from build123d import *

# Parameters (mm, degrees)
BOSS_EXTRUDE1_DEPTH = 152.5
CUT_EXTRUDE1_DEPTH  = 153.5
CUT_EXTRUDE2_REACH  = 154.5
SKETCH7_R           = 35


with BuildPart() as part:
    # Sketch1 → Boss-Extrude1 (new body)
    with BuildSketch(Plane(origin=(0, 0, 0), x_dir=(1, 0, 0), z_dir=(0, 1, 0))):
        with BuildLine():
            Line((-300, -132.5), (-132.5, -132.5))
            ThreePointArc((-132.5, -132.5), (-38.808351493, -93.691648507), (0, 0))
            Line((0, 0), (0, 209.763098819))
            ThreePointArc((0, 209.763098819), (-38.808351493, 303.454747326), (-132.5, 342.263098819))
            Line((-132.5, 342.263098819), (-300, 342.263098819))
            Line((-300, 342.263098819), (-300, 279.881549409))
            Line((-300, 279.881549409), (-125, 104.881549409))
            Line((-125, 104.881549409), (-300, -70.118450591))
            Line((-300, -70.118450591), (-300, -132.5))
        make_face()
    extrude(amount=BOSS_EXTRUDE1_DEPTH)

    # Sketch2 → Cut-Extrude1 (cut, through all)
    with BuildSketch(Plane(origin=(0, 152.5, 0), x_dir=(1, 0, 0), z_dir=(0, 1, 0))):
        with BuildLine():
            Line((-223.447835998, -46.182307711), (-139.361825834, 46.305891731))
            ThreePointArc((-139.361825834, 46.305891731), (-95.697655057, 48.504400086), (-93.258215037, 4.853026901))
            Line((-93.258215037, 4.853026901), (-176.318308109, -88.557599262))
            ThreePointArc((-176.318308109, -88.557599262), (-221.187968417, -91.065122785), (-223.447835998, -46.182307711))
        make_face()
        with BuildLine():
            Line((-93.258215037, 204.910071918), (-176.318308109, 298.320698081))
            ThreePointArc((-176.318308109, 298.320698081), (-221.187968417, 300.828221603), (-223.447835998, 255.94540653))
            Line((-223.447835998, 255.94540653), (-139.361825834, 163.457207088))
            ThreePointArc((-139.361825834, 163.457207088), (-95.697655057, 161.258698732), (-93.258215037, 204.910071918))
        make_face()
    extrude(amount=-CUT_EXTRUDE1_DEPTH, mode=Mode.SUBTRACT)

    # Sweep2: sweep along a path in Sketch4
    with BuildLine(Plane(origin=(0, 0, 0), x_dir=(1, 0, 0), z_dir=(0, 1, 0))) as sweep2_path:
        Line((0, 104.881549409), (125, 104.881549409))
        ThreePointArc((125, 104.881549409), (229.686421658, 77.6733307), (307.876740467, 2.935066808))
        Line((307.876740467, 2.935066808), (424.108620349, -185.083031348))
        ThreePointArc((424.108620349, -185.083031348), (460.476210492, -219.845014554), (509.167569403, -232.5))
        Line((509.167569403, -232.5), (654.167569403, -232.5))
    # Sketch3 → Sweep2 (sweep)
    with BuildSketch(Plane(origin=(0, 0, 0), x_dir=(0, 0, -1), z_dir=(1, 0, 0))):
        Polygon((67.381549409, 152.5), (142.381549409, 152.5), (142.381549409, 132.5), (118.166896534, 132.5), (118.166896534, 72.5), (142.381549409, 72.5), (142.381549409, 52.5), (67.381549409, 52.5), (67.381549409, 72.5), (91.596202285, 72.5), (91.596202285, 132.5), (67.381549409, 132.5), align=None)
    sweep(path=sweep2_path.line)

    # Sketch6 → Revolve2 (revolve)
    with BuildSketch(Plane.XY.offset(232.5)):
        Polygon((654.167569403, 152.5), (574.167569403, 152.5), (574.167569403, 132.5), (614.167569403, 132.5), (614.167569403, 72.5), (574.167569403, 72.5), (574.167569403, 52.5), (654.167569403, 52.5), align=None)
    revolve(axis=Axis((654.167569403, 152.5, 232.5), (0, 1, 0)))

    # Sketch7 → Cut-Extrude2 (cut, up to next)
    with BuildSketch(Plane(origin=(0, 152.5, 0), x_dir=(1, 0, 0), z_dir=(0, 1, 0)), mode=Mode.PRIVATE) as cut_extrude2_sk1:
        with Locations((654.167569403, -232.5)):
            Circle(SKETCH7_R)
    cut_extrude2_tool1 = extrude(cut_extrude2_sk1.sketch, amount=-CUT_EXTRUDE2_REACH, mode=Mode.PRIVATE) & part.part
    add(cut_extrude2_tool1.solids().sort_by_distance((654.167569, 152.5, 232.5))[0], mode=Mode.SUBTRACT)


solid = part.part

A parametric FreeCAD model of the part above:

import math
import FreeCAD as App
import Part
import Sketcher

V = App.Vector

doc = App.newDocument("Part")
params = doc.addObject("Spreadsheet::Sheet", "Params")
for row, (alias, value) in enumerate([
    ("sketch1_radius", "132.5 mm"),
    ("sketch1_width", "167.5 mm"),
    ("pad1_length", "152.5 mm"),
    ("sketch2_radius", "31 mm"),
    ("sketch3_width", "20 mm"),
    ("sketch3_width2", "60 mm"),
    ("sketch3_height", "75 mm"),
    ("sketch4_radius", "215 mm"),
    ("sketch4_radius2", "100 mm"),
    ("sketch4_width", "125 mm"),
    ("sketch4_width2", "145 mm"),
    ("sketch5_width", "80 mm"),
    ("sketch5_width2", "40 mm"),
    ("sketch5_height", "20 mm"),
    ("sketch5_height2", "60 mm"),
    ("revolution_angle", "360 deg"),
    ("sketch6_diameter", "70 mm"),
], start=1):
    params.set(f"A{row}", alias)
    params.set(f"B{row}", "=" + value)
    params.setAlias(f"B{row}", alias)

body = doc.addObject("PartDesign::Body", "Body")

# Sketch on XZ plane
sketch1 = body.newObject("Sketcher::SketchObject", "Sketch")
sketch1.AttachmentSupport = (doc.getObject("XZ_Plane"), [""])
sketch1.MapMode = "FlatFace"
sketch1.addGeometry(Part.LineSegment(V(-300, 132.5, 0), V(-132.5, 132.5, 0)), False)
sketch1.addGeometry(Part.ArcOfCircle(Part.Circle(V(-132.5, 0, 0), V(0, 0, 1), 132.5), math.radians(0), math.radians(90)), False)
sketch1.addGeometry(Part.LineSegment(V(0, 0, 0), V(0, -209.763099, 0)), False)
sketch1.addGeometry(Part.ArcOfCircle(Part.Circle(V(-132.5, -209.763099, 0), V(0, 0, 1), 132.5), math.radians(-90), math.radians(0)), False)
sketch1.addGeometry(Part.LineSegment(V(-132.5, -342.263099, 0), V(-300, -342.263099, 0)), False)
sketch1.addGeometry(Part.LineSegment(V(-300, -342.263099, 0), V(-300, -279.881549, 0)), False)
sketch1.addGeometry(Part.LineSegment(V(-300, -279.881549, 0), V(-125, -104.881549, 0)), False)
sketch1.addGeometry(Part.LineSegment(V(-125, -104.881549, 0), V(-300, 70.118451, 0)), False)
sketch1.addGeometry(Part.LineSegment(V(-300, 70.118451, 0), V(-300, 132.5, 0)), False)
sketch1.addConstraint(Sketcher.Constraint("Tangent", 0, 2, 1, 2))
sketch1.addConstraint(Sketcher.Constraint("Tangent", 1, 1, 2, 1))
sketch1.addConstraint(Sketcher.Constraint("Tangent", 2, 2, 3, 2))
sketch1.addConstraint(Sketcher.Constraint("Tangent", 3, 1, 4, 1))
sketch1.addConstraint(Sketcher.Constraint("Coincident", 4, 2, 5, 1))
sketch1.addConstraint(Sketcher.Constraint("Coincident", 5, 2, 6, 1))
sketch1.addConstraint(Sketcher.Constraint("Coincident", 6, 2, 7, 1))
sketch1.addConstraint(Sketcher.Constraint("Coincident", 7, 2, 8, 1))
sketch1.addConstraint(Sketcher.Constraint("Coincident", 8, 2, 0, 1))
sketch1.addConstraint(Sketcher.Constraint("Horizontal", 0))
sketch1.addConstraint(Sketcher.Constraint("Vertical", 2))
sketch1.addConstraint(Sketcher.Constraint("Horizontal", 4))
sketch1.addConstraint(Sketcher.Constraint("Vertical", 5))
sketch1.addConstraint(Sketcher.Constraint("Vertical", 8))
sketch1.addConstraint(Sketcher.Constraint("Coincident", 1, 1, -1, 1))
sketch1.addConstraint(Sketcher.Constraint("Equal", 1, 3))
sketch1.addConstraint(Sketcher.Constraint("Perpendicular", 6, 7))
sketch1.addConstraint(Sketcher.Constraint("Vertical", 5, 2, 7, 2))
sketch1.addConstraint(Sketcher.Constraint("Equal", 5, 8))
sketch1.addConstraint(Sketcher.Constraint("Equal", 6, 7))
sketch1.addConstraint(Sketcher.Constraint("Radius", 1, 132.5))
sketch1.addConstraint(Sketcher.Constraint("DistanceX", 0, 1, 0, 2, 167.5))
sketch1.addConstraint(Sketcher.Constraint("DistanceX", 6, 2, -1, 1, 125.0))
sketch1.addConstraint(Sketcher.Constraint("DistanceY", 2, 2, 2, 1, 209.763099))
sketch1.setExpression("Constraints[20]", "Params.sketch1_radius")
sketch1.setExpression("Constraints[21]", "Params.sketch1_width")
pad1 = body.newObject("PartDesign::Pad", "Pad")
pad1.Profile = sketch1
pad1.setExpression("Length", "Params.pad1_length")
pad1.Reversed = True

# Sketch on XZ plane
sketch2 = body.newObject("Sketcher::SketchObject", "Sketch001")
sketch2.AttachmentSupport = (doc.getObject("XZ_Plane"), [""])
sketch2.MapMode = "FlatFace"
sketch2.AttachmentOffset = App.Placement(V(0, 0, -152.5), App.Rotation())
sketch2.addGeometry(Part.LineSegment(V(-139.361826, -46.305892, 0), V(-223.447836, 46.182308, 0)), False)
sketch2.addGeometry(Part.ArcOfCircle(Part.Circle(V(-200, 67.5, 0), V(0, 0, 1), 31.689825), math.radians(41.643278), math.radians(222.275666)), False)
sketch2.addGeometry(Part.LineSegment(V(-176.318308, 88.557599, 0), V(-93.258215, -4.853027, 0)), False)
sketch2.addGeometry(Part.ArcOfCircle(Part.Circle(V(-116.424403, -25.452244, 0), V(0, 0, 1), 31), math.radians(-137.724334), math.radians(41.643278)), False)
sketch2.addGeometry(Part.LineSegment(V(-93.258215, -204.910072, 0), V(-176.318308, -298.320698, 0)), False)
sketch2.addGeometry(Part.ArcOfCircle(Part.Circle(V(-200, -277.263099, 0), V(0, 0, 1), 31.689825), math.radians(137.724334), math.radians(318.356722)), False)
sketch2.addGeometry(Part.LineSegment(V(-223.447836, -255.945407, 0), V(-139.361826, -163.457207, 0)), False)
sketch2.addGeometry(Part.ArcOfCircle(Part.Circle(V(-116.424403, -184.310855, 0), V(0, 0, 1), 31), math.radians(-41.643278), math.radians(137.724334)), False)
sketch2.addConstraint(Sketcher.Constraint("Tangent", 0, 2, 1, 2))
sketch2.addConstraint(Sketcher.Constraint("Tangent", 1, 1, 2, 1))
sketch2.addConstraint(Sketcher.Constraint("Tangent", 2, 2, 3, 2))
sketch2.addConstraint(Sketcher.Constraint("Tangent", 3, 1, 0, 1))
sketch2.addConstraint(Sketcher.Constraint("Tangent", 4, 2, 5, 2))
sketch2.addConstraint(Sketcher.Constraint("Tangent", 5, 1, 6, 1))
sketch2.addConstraint(Sketcher.Constraint("Tangent", 6, 2, 7, 2))
sketch2.addConstraint(Sketcher.Constraint("Tangent", 7, 1, 4, 1))
sketch2.addConstraint(Sketcher.Constraint("Equal", 1, 5))
sketch2.addConstraint(Sketcher.Constraint("Equal", 3, 7))
sketch2.addConstraint(Sketcher.Constraint("Vertical", 1, 3, 5, 3))
sketch2.addConstraint(Sketcher.Constraint("Vertical", 3, 3, 7, 3))
sketch2.addConstraint(Sketcher.Constraint("Vertical", 1, 1, 4, 2))
sketch2.addConstraint(Sketcher.Constraint("Radius", 3, 31.0))
sketch2.addConstraint(Sketcher.Constraint("DistanceX", 1, 3, -1, 1, 200.0))
sketch2.addConstraint(Sketcher.Constraint("DistanceY", -1, 1, 1, 3, 67.5))
sketch2.addConstraint(Sketcher.Constraint("Radius", 1, 31.689825))
sketch2.addConstraint(Sketcher.Constraint("DistanceY", 5, 3, -1, 1, 277.263099))
sketch2.addConstraint(Sketcher.Constraint("DistanceY", -1, 1, 1, 1, 88.557599))
sketch2.addConstraint(Sketcher.Constraint("DistanceY", 3, 1, 0, 2, 92.488199))
sketch2.setExpression("Constraints[13]", "Params.sketch2_radius")
pocket1 = body.newObject("PartDesign::Pocket", "Pocket")
pocket1.Profile = sketch2
pocket1.Type = "ThroughAll"
pocket1.Reversed = True

# Sketch on YZ plane
sketch3 = body.newObject("Sketcher::SketchObject", "Sketch002")
sketch3.AttachmentSupport = (doc.getObject("YZ_Plane"), [""])
sketch3.MapMode = "FlatFace"
sketch3.addGeometry(Part.LineSegment(V(152.5, -142.381549, 0), V(152.5, -67.381549, 0)), False)
sketch3.addGeometry(Part.LineSegment(V(152.5, -67.381549, 0), V(132.5, -67.381549, 0)), False)
sketch3.addGeometry(Part.LineSegment(V(132.5, -67.381549, 0), V(132.5, -91.596202, 0)), False)
sketch3.addGeometry(Part.LineSegment(V(132.5, -91.596202, 0), V(72.5, -91.596202, 0)), False)
sketch3.addGeometry(Part.LineSegment(V(72.5, -91.596202, 0), V(72.5, -67.381549, 0)), False)
sketch3.addGeometry(Part.LineSegment(V(72.5, -67.381549, 0), V(52.5, -67.381549, 0)), False)
sketch3.addGeometry(Part.LineSegment(V(52.5, -67.381549, 0), V(52.5, -142.381549, 0)), False)
sketch3.addGeometry(Part.LineSegment(V(52.5, -142.381549, 0), V(72.5, -142.381549, 0)), False)
sketch3.addGeometry(Part.LineSegment(V(72.5, -142.381549, 0), V(72.5, -118.166897, 0)), False)
sketch3.addGeometry(Part.LineSegment(V(72.5, -118.166897, 0), V(132.5, -118.166897, 0)), False)
sketch3.addGeometry(Part.LineSegment(V(132.5, -118.166897, 0), V(132.5, -142.381549, 0)), False)
sketch3.addGeometry(Part.LineSegment(V(132.5, -142.381549, 0), V(152.5, -142.381549, 0)), False)
sketch3.addConstraint(Sketcher.Constraint("Coincident", 0, 2, 1, 1))
sketch3.addConstraint(Sketcher.Constraint("Coincident", 1, 2, 2, 1))
sketch3.addConstraint(Sketcher.Constraint("Coincident", 2, 2, 3, 1))
sketch3.addConstraint(Sketcher.Constraint("Coincident", 3, 2, 4, 1))
sketch3.addConstraint(Sketcher.Constraint("Coincident", 4, 2, 5, 1))
sketch3.addConstraint(Sketcher.Constraint("Coincident", 5, 2, 6, 1))
sketch3.addConstraint(Sketcher.Constraint("Coincident", 6, 2, 7, 1))
sketch3.addConstraint(Sketcher.Constraint("Coincident", 7, 2, 8, 1))
sketch3.addConstraint(Sketcher.Constraint("Coincident", 8, 2, 9, 1))
sketch3.addConstraint(Sketcher.Constraint("Coincident", 9, 2, 10, 1))
sketch3.addConstraint(Sketcher.Constraint("Coincident", 10, 2, 11, 1))
sketch3.addConstraint(Sketcher.Constraint("Coincident", 11, 2, 0, 1))
sketch3.addConstraint(Sketcher.Constraint("Vertical", 0))
sketch3.addConstraint(Sketcher.Constraint("Horizontal", 1))
sketch3.addConstraint(Sketcher.Constraint("Vertical", 2))
sketch3.addConstraint(Sketcher.Constraint("Horizontal", 3))
sketch3.addConstraint(Sketcher.Constraint("Vertical", 4))
sketch3.addConstraint(Sketcher.Constraint("Horizontal", 5))
sketch3.addConstraint(Sketcher.Constraint("Vertical", 6))
sketch3.addConstraint(Sketcher.Constraint("Horizontal", 7))
sketch3.addConstraint(Sketcher.Constraint("Vertical", 8))
sketch3.addConstraint(Sketcher.Constraint("Horizontal", 9))
sketch3.addConstraint(Sketcher.Constraint("Vertical", 10))
sketch3.addConstraint(Sketcher.Constraint("Horizontal", 11))
sketch3.addConstraint(Sketcher.Constraint("Horizontal", 1, 2, 4, 2))
sketch3.addConstraint(Sketcher.Constraint("Horizontal", 7, 2, 10, 2))
sketch3.addConstraint(Sketcher.Constraint("Vertical", 4, 2, 7, 2))
sketch3.addConstraint(Sketcher.Constraint("Vertical", 2, 2, 9, 2))
sketch3.addConstraint(Sketcher.Constraint("Equal", 1, 5))
sketch3.addConstraint(Sketcher.Constraint("Equal", 4, 8))
sketch3.addConstraint(Sketcher.Constraint("DistanceX", 1, 2, 1, 1, 20.0))
sketch3.addConstraint(Sketcher.Constraint("DistanceX", 3, 2, 3, 1, 60.0))
sketch3.addConstraint(Sketcher.Constraint("DistanceY", 0, 1, 0, 2, 75.0))
sketch3.addConstraint(Sketcher.Constraint("DistanceX", -1, 1, 0, 2, 152.5))
sketch3.addConstraint(Sketcher.Constraint("DistanceY", 2, 2, 2, 1, 24.214653))
sketch3.addConstraint(Sketcher.Constraint("DistanceY", 0, 2, -1, 1, 67.381549))
sketch3.setExpression("Constraints[30]", "Params.sketch3_width")
sketch3.setExpression("Constraints[31]", "Params.sketch3_width2")
sketch3.setExpression("Constraints[32]", "Params.sketch3_height")

# Sketch on XZ plane
sketch4 = body.newObject("Sketcher::SketchObject", "Sketch003")
sketch4.AttachmentSupport = (doc.getObject("XZ_Plane"), [""])
sketch4.MapMode = "FlatFace"
sketch4.addGeometry(Part.LineSegment(V(0, -104.881549, 0), V(125, -104.881549, 0)), False)
sketch4.addGeometry(Part.ArcOfCircle(Part.Circle(V(125, 110.118451, 0), V(0, 0, 1), 215), math.radians(-90), math.radians(-31.724156)), False)
sketch4.addGeometry(Part.LineSegment(V(307.87674, -2.935067, 0), V(424.10862, 185.083031, 0)), False)
sketch4.addGeometry(Part.ArcOfCircle(Part.Circle(V(509.167569, 132.5, 0), V(0, 0, 1), 100), math.radians(90), math.radians(148.275844)), False)
sketch4.addGeometry(Part.LineSegment(V(509.167569, 232.5, 0), V(654.167569, 232.5, 0)), False)
sketch4.addConstraint(Sketcher.Constraint("Tangent", 0, 2, 1, 1))
sketch4.addConstraint(Sketcher.Constraint("Tangent", 1, 2, 2, 1))
sketch4.addConstraint(Sketcher.Constraint("Tangent", 2, 2, 3, 2))
sketch4.addConstraint(Sketcher.Constraint("Tangent", 3, 1, 4, 1))
sketch4.addConstraint(Sketcher.Constraint("Horizontal", 0))
sketch4.addConstraint(Sketcher.Constraint("Horizontal", 4))
sketch4.addConstraint(Sketcher.Constraint("PointOnObject", 0, 1, -2))
sketch4.addConstraint(Sketcher.Constraint("Radius", 1, 215.0))
sketch4.addConstraint(Sketcher.Constraint("Radius", 3, 100.0))
sketch4.addConstraint(Sketcher.Constraint("DistanceX", 0, 1, 0, 2, 125.0))
sketch4.addConstraint(Sketcher.Constraint("DistanceX", 4, 1, 4, 2, 145.0))
sketch4.addConstraint(Sketcher.Constraint("DistanceY", -1, 1, 3, 3, 132.5))
sketch4.addConstraint(Sketcher.Constraint("DistanceY", 1, 2, 2, 2, 188.018098))
sketch4.addConstraint(Sketcher.Constraint("DistanceY", -1, 1, 1, 3, 110.118451))
sketch4.setExpression("Constraints[7]", "Params.sketch4_radius")
sketch4.setExpression("Constraints[8]", "Params.sketch4_radius2")
sketch4.setExpression("Constraints[9]", "Params.sketch4_width")
sketch4.setExpression("Constraints[10]", "Params.sketch4_width2")
doc.recompute()

additivepipe = body.newObject("PartDesign::AdditivePipe", "AdditivePipe")
additivepipe.Profile = sketch3
additivepipe.Spine = (sketch4, ["Edge1", "Edge2", "Edge3", "Edge4", "Edge5"])

# Sketch on XY plane
sketch5 = body.newObject("Sketcher::SketchObject", "Sketch004")
sketch5.AttachmentSupport = (doc.getObject("XY_Plane"), [""])
sketch5.MapMode = "FlatFace"
sketch5.AttachmentOffset = App.Placement(V(0, 0, 232.5), App.Rotation())
sketch5.addGeometry(Part.LineSegment(V(654.167569, 152.5, 0), V(574.167569, 152.5, 0)), False)
sketch5.addGeometry(Part.LineSegment(V(574.167569, 152.5, 0), V(574.167569, 132.5, 0)), False)
sketch5.addGeometry(Part.LineSegment(V(574.167569, 132.5, 0), V(614.167569, 132.5, 0)), False)
sketch5.addGeometry(Part.LineSegment(V(614.167569, 132.5, 0), V(614.167569, 72.5, 0)), False)
sketch5.addGeometry(Part.LineSegment(V(614.167569, 72.5, 0), V(574.167569, 72.5, 0)), False)
sketch5.addGeometry(Part.LineSegment(V(574.167569, 72.5, 0), V(574.167569, 52.5, 0)), False)
sketch5.addGeometry(Part.LineSegment(V(574.167569, 52.5, 0), V(654.167569, 52.5, 0)), False)
sketch5.addGeometry(Part.LineSegment(V(654.167569, 52.5, 0), V(654.167569, 152.5, 0)), False)
sketch5.addGeometry(Part.LineSegment(V(654.167569, 52.5, 0), V(654.167569, 152.5, 0)), True)  # axis
sketch5.addConstraint(Sketcher.Constraint("Coincident", 0, 2, 1, 1))
sketch5.addConstraint(Sketcher.Constraint("Coincident", 1, 2, 2, 1))
sketch5.addConstraint(Sketcher.Constraint("Coincident", 2, 2, 3, 1))
sketch5.addConstraint(Sketcher.Constraint("Coincident", 3, 2, 4, 1))
sketch5.addConstraint(Sketcher.Constraint("Coincident", 4, 2, 5, 1))
sketch5.addConstraint(Sketcher.Constraint("Coincident", 5, 2, 6, 1))
sketch5.addConstraint(Sketcher.Constraint("Coincident", 6, 2, 7, 1))
sketch5.addConstraint(Sketcher.Constraint("Coincident", 7, 2, 0, 1))
sketch5.addConstraint(Sketcher.Constraint("Horizontal", 0))
sketch5.addConstraint(Sketcher.Constraint("Vertical", 1))
sketch5.addConstraint(Sketcher.Constraint("Horizontal", 2))
sketch5.addConstraint(Sketcher.Constraint("Vertical", 3))
sketch5.addConstraint(Sketcher.Constraint("Horizontal", 4))
sketch5.addConstraint(Sketcher.Constraint("Vertical", 5))
sketch5.addConstraint(Sketcher.Constraint("Horizontal", 6))
sketch5.addConstraint(Sketcher.Constraint("Vertical", 7))
sketch5.addConstraint(Sketcher.Constraint("Vertical", 8))
sketch5.addConstraint(Sketcher.Constraint("Coincident", 8, 1, 6, 2))
sketch5.addConstraint(Sketcher.Constraint("Horizontal", 0, 2, 8, 2))
sketch5.addConstraint(Sketcher.Constraint("Vertical", 1, 2, 4, 2))
sketch5.addConstraint(Sketcher.Constraint("Equal", 1, 5))
sketch5.addConstraint(Sketcher.Constraint("DistanceX", 0, 2, 0, 1, 80.0))
sketch5.addConstraint(Sketcher.Constraint("DistanceX", 2, 1, 2, 2, 40.0))
sketch5.addConstraint(Sketcher.Constraint("DistanceY", 1, 2, 1, 1, 20.0))
sketch5.addConstraint(Sketcher.Constraint("DistanceY", 3, 2, 3, 1, 60.0))
sketch5.addConstraint(Sketcher.Constraint("DistanceY", -1, 1, 0, 2, 152.5))
sketch5.addConstraint(Sketcher.Constraint("DistanceX", -1, 1, 0, 2, 574.167569))
sketch5.setExpression("Constraints[21]", "Params.sketch5_width")
sketch5.setExpression("Constraints[22]", "Params.sketch5_width2")
sketch5.setExpression("Constraints[23]", "Params.sketch5_height")
sketch5.setExpression("Constraints[24]", "Params.sketch5_height2")
revolution = body.newObject("PartDesign::Revolution", "Revolution")
revolution.Profile = sketch5
revolution.ReferenceAxis = (sketch5, ["Axis0"])
revolution.setExpression("Angle", "Params.revolution_angle")

# Sketch on XZ plane
sketch6 = body.newObject("Sketcher::SketchObject", "Sketch005")
sketch6.AttachmentSupport = (doc.getObject("XZ_Plane"), [""])
sketch6.MapMode = "FlatFace"
sketch6.AttachmentOffset = App.Placement(V(0, 0, -152.5), App.Rotation())
sketch6.addGeometry(Part.Circle(V(654.167569, 232.5, 0), V(0, 0, 1), 35), False)
sketch6.addConstraint(Sketcher.Constraint("Diameter", 0, 70.0))
sketch6.addConstraint(Sketcher.Constraint("DistanceY", -1, 1, 0, 3, 232.5))
sketch6.addConstraint(Sketcher.Constraint("DistanceX", -1, 1, 0, 3, 654.167569))
sketch6.setExpression("Constraints[0]", "Params.sketch6_diameter")
pocket2 = body.newObject("PartDesign::Pocket", "Pocket001")
pocket2.Profile = sketch6
pocket2.Type = "UpToFirst"
pocket2.Reversed = True

doc.recompute()
